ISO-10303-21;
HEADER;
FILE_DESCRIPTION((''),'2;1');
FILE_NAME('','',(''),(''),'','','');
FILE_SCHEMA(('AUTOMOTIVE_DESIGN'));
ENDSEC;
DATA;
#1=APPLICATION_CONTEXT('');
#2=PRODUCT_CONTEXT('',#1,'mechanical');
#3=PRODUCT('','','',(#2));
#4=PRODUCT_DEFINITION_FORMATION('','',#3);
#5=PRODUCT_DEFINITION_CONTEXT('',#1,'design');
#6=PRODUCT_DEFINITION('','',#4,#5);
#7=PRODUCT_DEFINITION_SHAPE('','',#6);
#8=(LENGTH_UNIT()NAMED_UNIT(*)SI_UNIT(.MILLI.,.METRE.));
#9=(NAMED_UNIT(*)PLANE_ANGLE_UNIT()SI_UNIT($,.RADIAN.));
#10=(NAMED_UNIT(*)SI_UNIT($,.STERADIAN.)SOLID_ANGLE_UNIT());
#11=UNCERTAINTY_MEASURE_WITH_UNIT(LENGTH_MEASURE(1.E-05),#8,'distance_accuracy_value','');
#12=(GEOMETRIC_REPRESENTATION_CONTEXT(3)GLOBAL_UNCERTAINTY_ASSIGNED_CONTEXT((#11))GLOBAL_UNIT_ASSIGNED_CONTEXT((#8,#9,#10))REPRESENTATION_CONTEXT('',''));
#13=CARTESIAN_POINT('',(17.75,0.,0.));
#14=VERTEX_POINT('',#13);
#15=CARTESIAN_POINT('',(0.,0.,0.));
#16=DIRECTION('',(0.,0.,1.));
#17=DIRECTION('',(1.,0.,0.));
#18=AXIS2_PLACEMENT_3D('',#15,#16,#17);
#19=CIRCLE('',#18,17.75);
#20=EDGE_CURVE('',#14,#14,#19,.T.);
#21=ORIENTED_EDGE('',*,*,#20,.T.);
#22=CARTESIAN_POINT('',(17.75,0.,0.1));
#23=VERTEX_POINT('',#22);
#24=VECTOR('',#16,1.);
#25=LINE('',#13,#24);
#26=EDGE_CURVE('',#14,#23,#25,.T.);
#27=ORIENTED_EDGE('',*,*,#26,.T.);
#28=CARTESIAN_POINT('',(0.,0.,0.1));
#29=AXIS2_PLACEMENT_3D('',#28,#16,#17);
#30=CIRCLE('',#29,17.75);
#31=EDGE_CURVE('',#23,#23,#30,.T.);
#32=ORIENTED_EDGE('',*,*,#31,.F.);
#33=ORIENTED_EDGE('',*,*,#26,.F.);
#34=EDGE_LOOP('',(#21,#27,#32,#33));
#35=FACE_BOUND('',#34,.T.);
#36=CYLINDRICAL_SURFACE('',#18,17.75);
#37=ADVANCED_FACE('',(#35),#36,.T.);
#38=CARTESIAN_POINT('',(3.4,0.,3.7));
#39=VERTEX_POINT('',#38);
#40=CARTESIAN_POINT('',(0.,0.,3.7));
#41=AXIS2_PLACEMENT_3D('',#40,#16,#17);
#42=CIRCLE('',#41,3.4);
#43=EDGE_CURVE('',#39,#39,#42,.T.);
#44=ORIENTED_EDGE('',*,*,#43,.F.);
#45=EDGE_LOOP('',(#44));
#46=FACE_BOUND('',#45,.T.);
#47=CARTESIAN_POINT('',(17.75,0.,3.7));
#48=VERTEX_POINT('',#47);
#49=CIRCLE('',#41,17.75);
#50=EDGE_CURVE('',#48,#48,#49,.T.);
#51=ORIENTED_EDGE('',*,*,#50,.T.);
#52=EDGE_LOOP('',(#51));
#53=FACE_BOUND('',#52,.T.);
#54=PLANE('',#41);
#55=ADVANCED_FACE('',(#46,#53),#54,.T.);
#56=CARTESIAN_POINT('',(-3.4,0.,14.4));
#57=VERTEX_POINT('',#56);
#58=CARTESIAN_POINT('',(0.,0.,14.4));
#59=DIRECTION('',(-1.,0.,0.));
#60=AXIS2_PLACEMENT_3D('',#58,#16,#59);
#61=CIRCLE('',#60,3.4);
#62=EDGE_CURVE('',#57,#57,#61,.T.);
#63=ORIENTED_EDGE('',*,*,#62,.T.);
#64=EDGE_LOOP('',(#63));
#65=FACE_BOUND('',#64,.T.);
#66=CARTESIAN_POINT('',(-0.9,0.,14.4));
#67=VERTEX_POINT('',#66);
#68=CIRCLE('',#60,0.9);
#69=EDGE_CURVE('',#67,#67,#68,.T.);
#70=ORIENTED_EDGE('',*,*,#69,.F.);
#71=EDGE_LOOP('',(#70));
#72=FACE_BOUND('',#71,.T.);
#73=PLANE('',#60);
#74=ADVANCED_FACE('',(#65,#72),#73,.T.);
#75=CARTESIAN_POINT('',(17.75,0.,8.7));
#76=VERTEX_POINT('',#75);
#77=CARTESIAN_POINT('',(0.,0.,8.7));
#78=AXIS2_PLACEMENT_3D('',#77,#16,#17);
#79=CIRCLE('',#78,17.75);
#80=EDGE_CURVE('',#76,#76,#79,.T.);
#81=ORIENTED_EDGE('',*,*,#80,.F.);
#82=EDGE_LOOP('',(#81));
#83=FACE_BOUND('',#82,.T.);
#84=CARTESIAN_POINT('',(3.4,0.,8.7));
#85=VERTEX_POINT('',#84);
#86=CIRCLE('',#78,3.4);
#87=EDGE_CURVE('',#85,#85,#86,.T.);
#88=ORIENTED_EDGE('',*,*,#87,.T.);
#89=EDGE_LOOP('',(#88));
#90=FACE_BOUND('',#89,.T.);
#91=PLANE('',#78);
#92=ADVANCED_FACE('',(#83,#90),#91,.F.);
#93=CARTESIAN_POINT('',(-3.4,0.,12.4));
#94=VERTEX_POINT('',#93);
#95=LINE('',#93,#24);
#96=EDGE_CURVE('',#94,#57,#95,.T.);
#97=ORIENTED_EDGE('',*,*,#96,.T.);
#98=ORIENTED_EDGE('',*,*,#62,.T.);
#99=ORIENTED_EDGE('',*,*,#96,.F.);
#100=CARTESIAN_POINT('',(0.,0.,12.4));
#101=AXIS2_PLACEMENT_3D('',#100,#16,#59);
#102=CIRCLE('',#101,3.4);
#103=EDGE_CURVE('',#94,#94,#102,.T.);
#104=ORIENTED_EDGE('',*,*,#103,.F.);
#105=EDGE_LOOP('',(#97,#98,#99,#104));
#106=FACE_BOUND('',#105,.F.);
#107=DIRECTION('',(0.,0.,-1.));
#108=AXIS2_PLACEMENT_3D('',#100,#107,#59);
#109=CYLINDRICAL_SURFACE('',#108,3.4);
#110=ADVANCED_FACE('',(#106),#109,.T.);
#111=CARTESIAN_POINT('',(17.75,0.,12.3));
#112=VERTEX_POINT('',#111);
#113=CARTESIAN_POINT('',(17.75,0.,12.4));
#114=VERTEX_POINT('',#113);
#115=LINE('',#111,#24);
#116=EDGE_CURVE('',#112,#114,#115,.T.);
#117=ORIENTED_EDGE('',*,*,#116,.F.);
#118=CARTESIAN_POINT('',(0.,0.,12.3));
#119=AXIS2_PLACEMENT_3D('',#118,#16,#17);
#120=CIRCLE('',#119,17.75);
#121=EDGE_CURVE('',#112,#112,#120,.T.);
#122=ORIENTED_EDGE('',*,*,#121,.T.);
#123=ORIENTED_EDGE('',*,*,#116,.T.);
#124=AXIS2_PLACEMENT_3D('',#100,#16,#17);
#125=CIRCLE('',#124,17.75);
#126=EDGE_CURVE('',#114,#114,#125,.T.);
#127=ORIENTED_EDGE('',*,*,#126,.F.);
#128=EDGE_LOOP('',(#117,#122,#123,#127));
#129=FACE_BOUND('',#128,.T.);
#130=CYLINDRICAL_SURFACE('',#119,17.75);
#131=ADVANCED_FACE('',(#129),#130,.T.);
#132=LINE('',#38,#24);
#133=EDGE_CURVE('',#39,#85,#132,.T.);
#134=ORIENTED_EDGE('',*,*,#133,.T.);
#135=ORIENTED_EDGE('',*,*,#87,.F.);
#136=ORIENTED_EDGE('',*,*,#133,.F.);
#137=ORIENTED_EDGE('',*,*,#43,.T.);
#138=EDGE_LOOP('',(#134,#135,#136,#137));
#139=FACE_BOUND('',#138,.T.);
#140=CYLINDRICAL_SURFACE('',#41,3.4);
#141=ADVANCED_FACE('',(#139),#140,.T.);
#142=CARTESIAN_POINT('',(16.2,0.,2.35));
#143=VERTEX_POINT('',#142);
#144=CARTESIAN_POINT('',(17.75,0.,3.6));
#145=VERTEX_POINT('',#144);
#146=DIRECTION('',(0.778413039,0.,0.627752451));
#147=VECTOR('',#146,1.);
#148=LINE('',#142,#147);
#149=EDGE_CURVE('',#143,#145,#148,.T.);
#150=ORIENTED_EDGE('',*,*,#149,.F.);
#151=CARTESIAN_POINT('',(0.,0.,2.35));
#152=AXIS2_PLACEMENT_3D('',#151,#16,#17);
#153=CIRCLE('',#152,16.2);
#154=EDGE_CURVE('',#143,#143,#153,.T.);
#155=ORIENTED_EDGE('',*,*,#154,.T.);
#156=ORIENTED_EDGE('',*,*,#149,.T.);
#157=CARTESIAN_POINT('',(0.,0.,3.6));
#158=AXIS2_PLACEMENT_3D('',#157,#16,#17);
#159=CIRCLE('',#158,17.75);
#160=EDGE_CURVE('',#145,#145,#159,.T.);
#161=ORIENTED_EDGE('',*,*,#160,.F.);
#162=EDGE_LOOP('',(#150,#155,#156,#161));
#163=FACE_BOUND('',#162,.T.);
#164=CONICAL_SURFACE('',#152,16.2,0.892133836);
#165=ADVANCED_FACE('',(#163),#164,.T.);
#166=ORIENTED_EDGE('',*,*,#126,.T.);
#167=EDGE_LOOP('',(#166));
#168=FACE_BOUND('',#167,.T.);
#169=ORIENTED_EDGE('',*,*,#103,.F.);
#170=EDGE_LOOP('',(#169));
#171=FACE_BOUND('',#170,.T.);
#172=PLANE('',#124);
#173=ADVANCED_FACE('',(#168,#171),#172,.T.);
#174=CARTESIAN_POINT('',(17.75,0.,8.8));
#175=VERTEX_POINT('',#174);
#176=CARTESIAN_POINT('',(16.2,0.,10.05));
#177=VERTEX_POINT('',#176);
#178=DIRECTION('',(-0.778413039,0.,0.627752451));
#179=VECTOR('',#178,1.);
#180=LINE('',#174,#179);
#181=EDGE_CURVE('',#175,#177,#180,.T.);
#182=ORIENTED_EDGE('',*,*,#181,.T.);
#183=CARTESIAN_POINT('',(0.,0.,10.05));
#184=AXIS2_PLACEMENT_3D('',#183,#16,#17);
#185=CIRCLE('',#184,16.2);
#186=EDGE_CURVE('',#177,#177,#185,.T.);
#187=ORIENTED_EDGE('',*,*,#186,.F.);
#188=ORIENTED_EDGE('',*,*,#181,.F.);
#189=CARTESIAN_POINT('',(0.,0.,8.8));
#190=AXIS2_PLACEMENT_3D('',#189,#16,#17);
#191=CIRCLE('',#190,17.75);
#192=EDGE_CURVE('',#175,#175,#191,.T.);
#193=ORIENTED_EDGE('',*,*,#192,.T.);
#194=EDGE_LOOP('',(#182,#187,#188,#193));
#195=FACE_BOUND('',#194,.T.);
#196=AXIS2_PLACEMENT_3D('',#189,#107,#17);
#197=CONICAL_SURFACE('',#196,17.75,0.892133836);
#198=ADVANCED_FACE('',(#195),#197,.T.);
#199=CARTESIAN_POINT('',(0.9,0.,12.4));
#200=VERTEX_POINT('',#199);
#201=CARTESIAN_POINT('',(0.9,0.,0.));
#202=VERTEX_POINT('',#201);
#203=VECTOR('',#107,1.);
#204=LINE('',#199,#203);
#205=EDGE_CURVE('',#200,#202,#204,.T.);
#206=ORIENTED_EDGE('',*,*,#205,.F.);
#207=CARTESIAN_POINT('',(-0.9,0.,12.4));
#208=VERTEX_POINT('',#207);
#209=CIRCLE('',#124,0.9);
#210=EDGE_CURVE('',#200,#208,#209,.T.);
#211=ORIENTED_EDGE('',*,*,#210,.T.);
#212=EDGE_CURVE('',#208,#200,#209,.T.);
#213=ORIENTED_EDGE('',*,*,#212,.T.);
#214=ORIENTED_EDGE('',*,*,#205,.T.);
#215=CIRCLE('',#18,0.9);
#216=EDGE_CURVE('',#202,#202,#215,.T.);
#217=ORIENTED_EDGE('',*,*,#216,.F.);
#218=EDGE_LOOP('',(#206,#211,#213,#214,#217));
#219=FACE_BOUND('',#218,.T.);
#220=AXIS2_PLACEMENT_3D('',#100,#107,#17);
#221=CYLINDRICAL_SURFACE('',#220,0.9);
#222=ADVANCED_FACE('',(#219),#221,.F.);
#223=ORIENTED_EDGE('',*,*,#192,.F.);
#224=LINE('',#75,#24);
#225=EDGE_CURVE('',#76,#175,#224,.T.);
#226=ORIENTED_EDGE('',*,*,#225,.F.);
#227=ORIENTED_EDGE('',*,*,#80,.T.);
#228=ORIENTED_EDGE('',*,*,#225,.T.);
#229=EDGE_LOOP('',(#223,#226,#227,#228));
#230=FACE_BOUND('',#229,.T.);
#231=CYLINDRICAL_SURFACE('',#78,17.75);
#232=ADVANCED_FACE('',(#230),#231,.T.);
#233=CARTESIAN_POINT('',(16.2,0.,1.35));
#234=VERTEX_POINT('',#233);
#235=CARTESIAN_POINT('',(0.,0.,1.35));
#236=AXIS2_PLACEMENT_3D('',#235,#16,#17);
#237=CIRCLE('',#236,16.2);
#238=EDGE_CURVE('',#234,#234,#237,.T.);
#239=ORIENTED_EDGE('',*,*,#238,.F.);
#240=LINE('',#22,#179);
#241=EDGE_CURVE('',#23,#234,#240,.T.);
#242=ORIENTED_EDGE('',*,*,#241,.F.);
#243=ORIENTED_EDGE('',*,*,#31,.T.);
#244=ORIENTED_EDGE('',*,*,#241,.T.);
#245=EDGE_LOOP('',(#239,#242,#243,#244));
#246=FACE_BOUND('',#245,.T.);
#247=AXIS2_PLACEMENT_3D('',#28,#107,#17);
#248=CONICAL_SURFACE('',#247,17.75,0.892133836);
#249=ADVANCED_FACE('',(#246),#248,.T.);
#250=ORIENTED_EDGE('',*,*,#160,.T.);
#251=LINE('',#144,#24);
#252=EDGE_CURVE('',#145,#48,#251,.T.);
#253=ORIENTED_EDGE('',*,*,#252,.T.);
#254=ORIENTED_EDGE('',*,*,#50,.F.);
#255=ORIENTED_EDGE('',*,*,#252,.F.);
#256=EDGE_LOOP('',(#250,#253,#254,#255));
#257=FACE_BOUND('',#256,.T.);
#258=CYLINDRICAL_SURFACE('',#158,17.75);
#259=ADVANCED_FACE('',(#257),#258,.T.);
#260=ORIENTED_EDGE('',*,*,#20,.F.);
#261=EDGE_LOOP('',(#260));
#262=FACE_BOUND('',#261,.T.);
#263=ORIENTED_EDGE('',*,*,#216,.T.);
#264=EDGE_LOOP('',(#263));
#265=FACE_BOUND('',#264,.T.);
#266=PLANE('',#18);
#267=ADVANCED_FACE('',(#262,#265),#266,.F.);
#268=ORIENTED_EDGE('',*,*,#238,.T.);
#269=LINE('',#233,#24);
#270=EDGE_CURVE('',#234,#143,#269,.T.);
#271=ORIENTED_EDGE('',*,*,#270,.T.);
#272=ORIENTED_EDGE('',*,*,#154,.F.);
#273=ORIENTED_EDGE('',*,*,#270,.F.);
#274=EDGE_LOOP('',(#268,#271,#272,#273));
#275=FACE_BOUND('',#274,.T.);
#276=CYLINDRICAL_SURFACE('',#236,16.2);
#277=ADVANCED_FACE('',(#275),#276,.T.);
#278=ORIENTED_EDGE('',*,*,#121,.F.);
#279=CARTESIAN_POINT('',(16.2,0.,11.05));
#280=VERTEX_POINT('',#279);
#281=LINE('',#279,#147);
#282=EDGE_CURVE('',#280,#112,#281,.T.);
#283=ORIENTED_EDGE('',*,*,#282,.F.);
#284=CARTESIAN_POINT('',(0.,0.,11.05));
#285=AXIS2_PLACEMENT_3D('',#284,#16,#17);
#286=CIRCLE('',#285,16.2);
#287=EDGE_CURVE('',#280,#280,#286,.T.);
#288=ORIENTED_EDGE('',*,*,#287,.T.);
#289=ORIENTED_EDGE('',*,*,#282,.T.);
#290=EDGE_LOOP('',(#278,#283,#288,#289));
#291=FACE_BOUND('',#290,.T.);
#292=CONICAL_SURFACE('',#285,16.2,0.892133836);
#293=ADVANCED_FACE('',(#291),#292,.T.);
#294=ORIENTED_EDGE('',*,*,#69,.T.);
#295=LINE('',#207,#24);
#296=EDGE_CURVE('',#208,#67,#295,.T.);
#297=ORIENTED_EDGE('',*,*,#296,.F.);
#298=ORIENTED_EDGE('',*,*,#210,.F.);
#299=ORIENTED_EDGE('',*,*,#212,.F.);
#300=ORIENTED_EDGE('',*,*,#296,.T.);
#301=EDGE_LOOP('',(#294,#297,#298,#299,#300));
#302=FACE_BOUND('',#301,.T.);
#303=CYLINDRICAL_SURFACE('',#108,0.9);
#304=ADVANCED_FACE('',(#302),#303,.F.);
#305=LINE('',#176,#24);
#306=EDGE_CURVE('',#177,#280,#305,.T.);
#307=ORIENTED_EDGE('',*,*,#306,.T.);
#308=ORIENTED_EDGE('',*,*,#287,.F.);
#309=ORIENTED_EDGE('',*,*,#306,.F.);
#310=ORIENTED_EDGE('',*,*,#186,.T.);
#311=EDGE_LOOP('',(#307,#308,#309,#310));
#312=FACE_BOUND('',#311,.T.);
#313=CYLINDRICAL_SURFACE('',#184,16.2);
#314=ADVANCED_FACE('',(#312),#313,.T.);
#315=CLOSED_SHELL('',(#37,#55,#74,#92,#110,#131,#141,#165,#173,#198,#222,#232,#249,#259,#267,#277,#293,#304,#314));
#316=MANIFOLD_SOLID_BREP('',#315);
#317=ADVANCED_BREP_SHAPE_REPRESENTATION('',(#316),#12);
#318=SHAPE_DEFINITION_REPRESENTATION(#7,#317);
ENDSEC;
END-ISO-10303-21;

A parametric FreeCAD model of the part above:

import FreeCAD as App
import Part
import Sketcher

V = App.Vector


def add_polygon(sketch, points):
    """Adds a closed chain of lines whose ends are joined by coincident constraints."""
    first, n = sketch.GeometryCount, len(points)
    for a, b in zip(points, points[1:] + points[:1]):
        sketch.addGeometry(Part.LineSegment(App.Vector(*a, 0), App.Vector(*b, 0)), False)
    for i in range(n):
        sketch.addConstraint(Sketcher.Constraint("Coincident", first + i, 2, first + (i + 1) % n, 1))

doc = App.newDocument("Part")
body = doc.addObject("PartDesign::Body", "Body")

sketch1 = body.newObject("Sketcher::SketchObject", "Sketch")
sketch1.AttachmentSupport = (doc.getObject("XZ_Plane"), [""])
sketch1.MapMode = "FlatFace"
add_polygon(sketch1, [(0.9, 12.4), (0.9, 0), (17.75, 0), (17.75, 0.1), (16.2, 1.35), (16.2, 2.35), (17.75, 3.6), (17.75, 3.7), (3.4, 3.7), (3.4, 8.7), (17.75, 8.7), (17.75, 8.8), (16.2, 10.05), (16.2, 11.05), (17.75, 12.3), (17.75, 12.4)])
sketch1.addConstraint(Sketcher.Constraint("Vertical", 0))
sketch1.addConstraint(Sketcher.Constraint("Horizontal", 1))
sketch1.addConstraint(Sketcher.Constraint("Vertical", 2))
sketch1.addConstraint(Sketcher.Constraint("Vertical", 4))
sketch1.addConstraint(Sketcher.Constraint("Vertical", 6))
sketch1.addConstraint(Sketcher.Constraint("Horizontal", 7))
sketch1.addConstraint(Sketcher.Constraint("Vertical", 8))
sketch1.addConstraint(Sketcher.Constraint("Horizontal", 9))
sketch1.addConstraint(Sketcher.Constraint("Vertical", 10))
sketch1.addConstraint(Sketcher.Constraint("Vertical", 12))
sketch1.addConstraint(Sketcher.Constraint("Vertical", 14))
sketch1.addConstraint(Sketcher.Constraint("Horizontal", 15))
sketch1.addConstraint(Sketcher.Constraint("PointOnObject", 0, 2, -1))
sketch1.addConstraint(Sketcher.Constraint("Parallel", 3, 11))
sketch1.addConstraint(Sketcher.Constraint("Parallel", 5, 13))
sketch1.addConstraint(Sketcher.Constraint("Vertical", 2, 2, 5, 2))
sketch1.addConstraint(Sketcher.Constraint("Vertical", 6, 2, 9, 2))
sketch1.addConstraint(Sketcher.Constraint("Vertical", 4, 2, 11, 2))
sketch1.addConstraint(Sketcher.Constraint("Vertical", 10, 2, 13, 2))
sketch1.addConstraint(Sketcher.Constraint("Equal", 2, 6))
sketch1.addConstraint(Sketcher.Constraint("Equal", 6, 10))
sketch1.addConstraint(Sketcher.Constraint("Equal", 4, 12))
sketch1.addConstraint(Sketcher.Constraint("Equal", 10, 14))
sketch1.addConstraint(Sketcher.Constraint("Equal", 3, 5))
sketch1.addConstraint(Sketcher.Constraint("DistanceY", 4, 1, 4, 2, 1.0))
sketch1.addConstraint(Sketcher.Constraint("DistanceY", 8, 1, 8, 2, 5.0))
sketch1.addConstraint(Sketcher.Constraint("DistanceY", 0, 2, 0, 1, 12.4))
sketch1.addConstraint(Sketcher.Constraint("DistanceY", 2, 1, 2, 2, 0.1))
sketch1.addConstraint(Sketcher.Constraint("DistanceX", 1, 1, 1, 2, 16.85))
sketch1.addConstraint(Sketcher.Constraint("DistanceX", 7, 2, 7, 1, 14.35))
sketch1.addConstraint(Sketcher.Constraint("DistanceX", -1, 1, 0, 2, 0.9))
sketch1.addConstraint(Sketcher.Constraint("DistanceX", -1, 1, 3, 2, 16.2))
revolution = body.newObject("PartDesign::Revolution", "Revolution")
revolution.Profile = sketch1
revolution.ReferenceAxis = (sketch1, ["V_Axis"])
revolution.Angle = 360

sketch2 = body.newObject("Sketcher::SketchObject", "Sketch001")
sketch2.AttachmentSupport = (doc.getObject("XY_Plane"), [""])
sketch2.MapMode = "FlatFace"
sketch2.AttachmentOffset = App.Placement(V(0, 0, 12.4), App.Rotation())
sketch2.addGeometry(Part.Circle(V(0, 0, 0), V(0, 0, 1), 3.4), False)
sketch2.addGeometry(Part.Circle(V(0, 0, 0), V(0, 0, 1), 0.9), False)
sketch2.addConstraint(Sketcher.Constraint("Coincident", 0, 3, -1, 1))
sketch2.addConstraint(Sketcher.Constraint("Coincident", 1, 3, -1, 1))
sketch2.addConstraint(Sketcher.Constraint("Diameter", 0, 6.8))
sketch2.addConstraint(Sketcher.Constraint("Diameter", 1, 1.8))
pad1 = body.newObject("PartDesign::Pad", "Pad")
pad1.Profile = sketch2
pad1.Length = 2

doc.recompute()
